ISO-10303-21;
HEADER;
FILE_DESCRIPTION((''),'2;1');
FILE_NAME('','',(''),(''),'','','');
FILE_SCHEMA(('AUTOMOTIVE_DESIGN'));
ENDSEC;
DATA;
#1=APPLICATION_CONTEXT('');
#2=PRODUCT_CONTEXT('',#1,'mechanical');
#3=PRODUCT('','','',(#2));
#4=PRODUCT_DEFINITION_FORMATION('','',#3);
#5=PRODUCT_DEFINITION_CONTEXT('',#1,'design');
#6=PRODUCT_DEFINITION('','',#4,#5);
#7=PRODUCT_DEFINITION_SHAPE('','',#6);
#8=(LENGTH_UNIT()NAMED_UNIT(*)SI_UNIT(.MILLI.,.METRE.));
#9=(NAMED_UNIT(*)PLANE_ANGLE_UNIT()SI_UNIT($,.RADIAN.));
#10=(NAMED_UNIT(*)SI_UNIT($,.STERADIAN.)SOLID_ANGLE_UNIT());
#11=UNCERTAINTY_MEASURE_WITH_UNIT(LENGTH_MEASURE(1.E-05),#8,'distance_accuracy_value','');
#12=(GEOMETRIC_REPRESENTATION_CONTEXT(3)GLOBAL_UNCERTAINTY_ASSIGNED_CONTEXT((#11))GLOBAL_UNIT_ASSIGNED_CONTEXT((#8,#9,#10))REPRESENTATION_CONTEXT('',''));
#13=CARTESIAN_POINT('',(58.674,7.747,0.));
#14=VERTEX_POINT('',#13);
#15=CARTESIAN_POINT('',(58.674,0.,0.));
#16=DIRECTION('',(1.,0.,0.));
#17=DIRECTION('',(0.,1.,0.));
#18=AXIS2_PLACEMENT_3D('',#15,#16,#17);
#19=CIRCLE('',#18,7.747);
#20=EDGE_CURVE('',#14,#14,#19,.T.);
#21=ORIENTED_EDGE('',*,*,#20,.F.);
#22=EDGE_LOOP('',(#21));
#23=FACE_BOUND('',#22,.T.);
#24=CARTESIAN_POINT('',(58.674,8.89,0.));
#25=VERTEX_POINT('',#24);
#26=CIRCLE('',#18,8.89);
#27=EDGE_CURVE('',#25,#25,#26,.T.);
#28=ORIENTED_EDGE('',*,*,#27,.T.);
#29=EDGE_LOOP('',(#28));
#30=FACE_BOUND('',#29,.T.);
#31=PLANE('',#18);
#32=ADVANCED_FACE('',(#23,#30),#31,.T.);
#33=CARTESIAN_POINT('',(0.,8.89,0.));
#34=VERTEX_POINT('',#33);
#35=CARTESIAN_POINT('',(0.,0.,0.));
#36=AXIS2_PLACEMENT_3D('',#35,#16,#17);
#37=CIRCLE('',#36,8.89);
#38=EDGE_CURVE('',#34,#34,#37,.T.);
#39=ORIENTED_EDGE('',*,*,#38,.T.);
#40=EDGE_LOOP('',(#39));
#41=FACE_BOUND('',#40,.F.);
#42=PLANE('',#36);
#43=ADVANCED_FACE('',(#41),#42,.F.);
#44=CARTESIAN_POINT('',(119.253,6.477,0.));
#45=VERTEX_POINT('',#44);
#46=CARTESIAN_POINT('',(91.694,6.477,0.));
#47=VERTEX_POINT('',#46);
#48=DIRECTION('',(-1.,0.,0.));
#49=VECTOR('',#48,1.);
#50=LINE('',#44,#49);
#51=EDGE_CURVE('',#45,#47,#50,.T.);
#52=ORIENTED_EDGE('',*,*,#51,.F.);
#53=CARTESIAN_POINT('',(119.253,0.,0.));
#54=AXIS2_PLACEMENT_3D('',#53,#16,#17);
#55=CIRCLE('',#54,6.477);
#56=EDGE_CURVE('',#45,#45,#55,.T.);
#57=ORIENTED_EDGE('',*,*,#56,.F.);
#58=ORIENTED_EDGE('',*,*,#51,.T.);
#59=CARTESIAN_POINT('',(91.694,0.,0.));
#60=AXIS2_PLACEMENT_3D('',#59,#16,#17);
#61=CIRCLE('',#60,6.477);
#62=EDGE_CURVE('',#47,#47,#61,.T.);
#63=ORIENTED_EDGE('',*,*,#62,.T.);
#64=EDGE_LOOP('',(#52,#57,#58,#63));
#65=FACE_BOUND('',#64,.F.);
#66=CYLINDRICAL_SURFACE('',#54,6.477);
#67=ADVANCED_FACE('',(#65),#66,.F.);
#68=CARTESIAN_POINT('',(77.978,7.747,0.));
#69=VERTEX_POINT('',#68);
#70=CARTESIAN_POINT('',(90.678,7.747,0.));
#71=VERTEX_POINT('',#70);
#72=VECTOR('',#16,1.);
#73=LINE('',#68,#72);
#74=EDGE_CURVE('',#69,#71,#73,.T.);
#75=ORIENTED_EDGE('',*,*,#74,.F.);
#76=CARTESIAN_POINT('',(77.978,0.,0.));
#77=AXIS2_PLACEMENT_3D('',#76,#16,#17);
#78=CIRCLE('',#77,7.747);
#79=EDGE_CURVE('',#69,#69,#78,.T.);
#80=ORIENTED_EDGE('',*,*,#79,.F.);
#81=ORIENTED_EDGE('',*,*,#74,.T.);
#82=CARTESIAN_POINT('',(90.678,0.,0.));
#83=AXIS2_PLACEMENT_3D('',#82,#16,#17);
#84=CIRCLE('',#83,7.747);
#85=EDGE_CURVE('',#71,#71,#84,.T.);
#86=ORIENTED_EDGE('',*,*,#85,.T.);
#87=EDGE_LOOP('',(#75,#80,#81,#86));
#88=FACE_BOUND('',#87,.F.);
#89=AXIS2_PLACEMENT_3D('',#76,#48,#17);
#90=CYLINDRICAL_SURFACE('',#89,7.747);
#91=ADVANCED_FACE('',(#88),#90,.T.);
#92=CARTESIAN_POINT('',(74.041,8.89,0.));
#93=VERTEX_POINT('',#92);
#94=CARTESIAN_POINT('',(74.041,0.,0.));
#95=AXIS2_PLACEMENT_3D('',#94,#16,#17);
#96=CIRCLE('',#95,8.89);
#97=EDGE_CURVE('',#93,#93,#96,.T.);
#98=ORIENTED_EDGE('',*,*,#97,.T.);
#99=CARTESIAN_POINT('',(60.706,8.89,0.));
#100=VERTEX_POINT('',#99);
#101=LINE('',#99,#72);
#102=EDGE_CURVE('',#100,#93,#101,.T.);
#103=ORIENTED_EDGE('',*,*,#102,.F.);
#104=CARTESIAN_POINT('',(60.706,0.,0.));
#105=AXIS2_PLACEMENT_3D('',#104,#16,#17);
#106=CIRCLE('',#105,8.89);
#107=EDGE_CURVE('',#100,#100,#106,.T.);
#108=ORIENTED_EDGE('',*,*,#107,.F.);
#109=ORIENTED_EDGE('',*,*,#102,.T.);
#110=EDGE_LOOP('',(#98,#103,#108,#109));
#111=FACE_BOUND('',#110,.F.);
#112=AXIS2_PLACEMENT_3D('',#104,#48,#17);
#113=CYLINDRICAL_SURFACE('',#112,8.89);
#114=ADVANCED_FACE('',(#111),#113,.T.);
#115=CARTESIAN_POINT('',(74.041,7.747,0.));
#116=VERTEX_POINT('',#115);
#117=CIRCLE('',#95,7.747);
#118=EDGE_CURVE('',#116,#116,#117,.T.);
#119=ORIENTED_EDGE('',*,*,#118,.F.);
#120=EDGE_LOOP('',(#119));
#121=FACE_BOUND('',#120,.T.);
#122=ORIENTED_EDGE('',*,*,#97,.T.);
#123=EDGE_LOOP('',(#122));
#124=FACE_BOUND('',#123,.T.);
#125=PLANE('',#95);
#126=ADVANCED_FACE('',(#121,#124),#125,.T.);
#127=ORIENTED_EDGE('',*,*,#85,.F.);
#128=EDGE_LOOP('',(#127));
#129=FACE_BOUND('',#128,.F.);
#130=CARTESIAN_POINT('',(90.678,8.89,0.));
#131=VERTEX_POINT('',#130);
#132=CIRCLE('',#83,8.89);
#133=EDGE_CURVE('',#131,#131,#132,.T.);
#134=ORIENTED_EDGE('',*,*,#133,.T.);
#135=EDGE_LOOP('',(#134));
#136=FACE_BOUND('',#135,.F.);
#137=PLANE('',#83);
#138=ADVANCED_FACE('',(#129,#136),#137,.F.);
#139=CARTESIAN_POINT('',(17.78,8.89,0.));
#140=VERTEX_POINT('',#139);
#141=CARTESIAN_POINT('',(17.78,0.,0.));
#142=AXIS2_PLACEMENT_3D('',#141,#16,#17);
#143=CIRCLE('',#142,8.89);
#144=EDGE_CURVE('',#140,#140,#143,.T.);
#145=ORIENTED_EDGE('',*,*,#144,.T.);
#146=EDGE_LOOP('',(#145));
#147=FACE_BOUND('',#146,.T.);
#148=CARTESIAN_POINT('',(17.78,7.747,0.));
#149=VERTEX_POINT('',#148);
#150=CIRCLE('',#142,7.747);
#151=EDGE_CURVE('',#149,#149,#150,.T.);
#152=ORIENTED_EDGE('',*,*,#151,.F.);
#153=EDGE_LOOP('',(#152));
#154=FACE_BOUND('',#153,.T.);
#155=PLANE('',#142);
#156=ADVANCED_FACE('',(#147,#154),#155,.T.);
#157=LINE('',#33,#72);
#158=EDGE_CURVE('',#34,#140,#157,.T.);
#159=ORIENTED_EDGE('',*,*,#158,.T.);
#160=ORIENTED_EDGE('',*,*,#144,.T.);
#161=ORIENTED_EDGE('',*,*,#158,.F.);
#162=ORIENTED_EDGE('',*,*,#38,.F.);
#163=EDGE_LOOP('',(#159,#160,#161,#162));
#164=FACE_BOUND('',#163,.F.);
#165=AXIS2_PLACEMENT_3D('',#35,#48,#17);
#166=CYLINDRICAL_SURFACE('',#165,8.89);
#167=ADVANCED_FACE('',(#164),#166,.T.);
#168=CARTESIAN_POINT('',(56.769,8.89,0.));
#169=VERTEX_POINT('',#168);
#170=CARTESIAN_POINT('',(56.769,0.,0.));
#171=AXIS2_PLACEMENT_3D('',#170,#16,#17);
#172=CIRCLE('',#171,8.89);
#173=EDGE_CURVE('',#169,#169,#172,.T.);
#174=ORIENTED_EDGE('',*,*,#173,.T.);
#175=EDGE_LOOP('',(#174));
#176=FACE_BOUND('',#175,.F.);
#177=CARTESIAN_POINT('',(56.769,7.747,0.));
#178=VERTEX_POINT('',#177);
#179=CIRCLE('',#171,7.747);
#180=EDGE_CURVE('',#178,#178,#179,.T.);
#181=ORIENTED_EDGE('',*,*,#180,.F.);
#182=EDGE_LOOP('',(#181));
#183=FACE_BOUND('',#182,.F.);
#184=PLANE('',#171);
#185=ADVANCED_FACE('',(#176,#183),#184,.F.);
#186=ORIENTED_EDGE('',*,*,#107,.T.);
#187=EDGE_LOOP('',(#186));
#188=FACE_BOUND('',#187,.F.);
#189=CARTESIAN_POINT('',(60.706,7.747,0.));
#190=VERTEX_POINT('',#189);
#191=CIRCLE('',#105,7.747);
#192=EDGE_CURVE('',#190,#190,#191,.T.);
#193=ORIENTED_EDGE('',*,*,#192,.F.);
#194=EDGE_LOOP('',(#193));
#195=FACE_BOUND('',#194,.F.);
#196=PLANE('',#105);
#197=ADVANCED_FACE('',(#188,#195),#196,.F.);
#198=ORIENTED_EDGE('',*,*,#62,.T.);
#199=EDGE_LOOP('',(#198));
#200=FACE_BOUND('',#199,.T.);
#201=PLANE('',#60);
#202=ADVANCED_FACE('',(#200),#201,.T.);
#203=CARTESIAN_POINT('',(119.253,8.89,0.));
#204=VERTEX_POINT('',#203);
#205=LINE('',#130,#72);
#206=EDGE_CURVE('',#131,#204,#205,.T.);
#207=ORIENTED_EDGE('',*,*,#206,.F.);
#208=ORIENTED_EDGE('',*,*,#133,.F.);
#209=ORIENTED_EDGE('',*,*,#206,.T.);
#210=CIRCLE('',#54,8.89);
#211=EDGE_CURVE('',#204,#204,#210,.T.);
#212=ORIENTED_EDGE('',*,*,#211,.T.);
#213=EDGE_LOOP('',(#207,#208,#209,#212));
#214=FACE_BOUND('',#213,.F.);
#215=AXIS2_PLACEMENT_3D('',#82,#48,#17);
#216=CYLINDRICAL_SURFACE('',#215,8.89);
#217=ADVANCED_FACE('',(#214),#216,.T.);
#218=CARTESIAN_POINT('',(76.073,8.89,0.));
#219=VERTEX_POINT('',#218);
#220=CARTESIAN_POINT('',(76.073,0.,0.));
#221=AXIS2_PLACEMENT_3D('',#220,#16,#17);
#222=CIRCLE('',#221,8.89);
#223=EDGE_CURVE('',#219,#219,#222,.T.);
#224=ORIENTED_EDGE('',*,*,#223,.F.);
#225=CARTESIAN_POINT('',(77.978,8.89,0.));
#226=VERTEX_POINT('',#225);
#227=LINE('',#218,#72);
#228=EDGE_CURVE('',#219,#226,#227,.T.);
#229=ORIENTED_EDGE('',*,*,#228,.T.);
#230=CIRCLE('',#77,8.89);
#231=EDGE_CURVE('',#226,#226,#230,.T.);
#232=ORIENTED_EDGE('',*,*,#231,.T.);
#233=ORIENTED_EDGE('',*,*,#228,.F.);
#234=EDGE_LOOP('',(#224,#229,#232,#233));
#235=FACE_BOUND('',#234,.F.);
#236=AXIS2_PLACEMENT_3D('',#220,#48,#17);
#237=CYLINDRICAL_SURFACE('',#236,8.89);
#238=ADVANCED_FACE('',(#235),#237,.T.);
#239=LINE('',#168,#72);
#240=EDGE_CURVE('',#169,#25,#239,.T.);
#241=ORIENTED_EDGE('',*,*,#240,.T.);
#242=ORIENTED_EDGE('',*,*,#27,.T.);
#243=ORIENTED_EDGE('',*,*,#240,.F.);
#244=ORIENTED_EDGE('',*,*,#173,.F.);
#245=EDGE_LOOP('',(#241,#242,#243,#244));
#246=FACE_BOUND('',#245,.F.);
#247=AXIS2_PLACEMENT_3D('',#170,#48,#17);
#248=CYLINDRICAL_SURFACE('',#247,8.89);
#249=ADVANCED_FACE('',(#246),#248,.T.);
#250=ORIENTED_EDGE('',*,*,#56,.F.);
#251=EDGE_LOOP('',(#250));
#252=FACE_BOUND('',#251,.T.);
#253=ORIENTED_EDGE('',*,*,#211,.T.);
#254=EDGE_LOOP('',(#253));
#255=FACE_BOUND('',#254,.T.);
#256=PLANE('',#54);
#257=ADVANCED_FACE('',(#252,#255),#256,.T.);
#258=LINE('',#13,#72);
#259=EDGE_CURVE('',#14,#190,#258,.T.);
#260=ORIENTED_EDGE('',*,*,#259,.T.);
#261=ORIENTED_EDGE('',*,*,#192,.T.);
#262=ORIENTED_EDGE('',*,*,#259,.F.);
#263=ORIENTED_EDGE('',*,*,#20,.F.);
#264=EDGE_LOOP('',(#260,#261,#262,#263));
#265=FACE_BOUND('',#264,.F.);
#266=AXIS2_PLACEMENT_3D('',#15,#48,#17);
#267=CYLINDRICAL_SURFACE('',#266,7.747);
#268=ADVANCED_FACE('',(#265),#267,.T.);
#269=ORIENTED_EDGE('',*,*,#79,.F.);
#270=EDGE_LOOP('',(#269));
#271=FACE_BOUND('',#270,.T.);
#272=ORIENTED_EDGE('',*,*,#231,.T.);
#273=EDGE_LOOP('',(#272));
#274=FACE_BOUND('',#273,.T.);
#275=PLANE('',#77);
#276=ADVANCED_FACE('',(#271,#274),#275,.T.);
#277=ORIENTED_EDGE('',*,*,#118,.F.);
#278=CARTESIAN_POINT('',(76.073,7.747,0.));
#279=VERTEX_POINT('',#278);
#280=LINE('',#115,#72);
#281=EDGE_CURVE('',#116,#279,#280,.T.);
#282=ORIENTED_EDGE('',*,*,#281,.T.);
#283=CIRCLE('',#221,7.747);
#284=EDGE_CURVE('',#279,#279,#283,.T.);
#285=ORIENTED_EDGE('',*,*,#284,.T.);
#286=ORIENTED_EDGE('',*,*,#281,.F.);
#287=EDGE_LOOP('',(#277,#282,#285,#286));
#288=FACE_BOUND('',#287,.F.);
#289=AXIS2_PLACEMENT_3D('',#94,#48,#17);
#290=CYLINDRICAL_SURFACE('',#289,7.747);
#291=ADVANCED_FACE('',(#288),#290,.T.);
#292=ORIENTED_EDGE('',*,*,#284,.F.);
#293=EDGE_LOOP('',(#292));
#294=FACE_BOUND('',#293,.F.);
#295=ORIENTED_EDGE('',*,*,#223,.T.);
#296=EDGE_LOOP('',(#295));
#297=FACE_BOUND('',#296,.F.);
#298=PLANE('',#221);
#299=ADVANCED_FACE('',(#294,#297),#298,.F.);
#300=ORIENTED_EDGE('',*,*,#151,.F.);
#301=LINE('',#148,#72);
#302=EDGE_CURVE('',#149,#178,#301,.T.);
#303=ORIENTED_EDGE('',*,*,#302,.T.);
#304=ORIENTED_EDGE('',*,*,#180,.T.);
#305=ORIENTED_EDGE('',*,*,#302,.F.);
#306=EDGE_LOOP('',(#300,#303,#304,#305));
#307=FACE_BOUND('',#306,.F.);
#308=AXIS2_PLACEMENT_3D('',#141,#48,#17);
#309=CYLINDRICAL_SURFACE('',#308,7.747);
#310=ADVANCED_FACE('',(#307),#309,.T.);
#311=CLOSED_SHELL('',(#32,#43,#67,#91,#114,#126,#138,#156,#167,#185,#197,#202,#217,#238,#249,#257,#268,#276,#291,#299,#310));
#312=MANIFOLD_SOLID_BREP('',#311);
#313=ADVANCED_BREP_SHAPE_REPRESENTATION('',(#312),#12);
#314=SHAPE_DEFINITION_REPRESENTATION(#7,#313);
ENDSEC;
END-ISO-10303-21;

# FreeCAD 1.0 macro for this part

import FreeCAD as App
import Part
import Sketcher
Q = App.Units.Quantity

doc = App.newDocument("Part")
body = doc.addObject("PartDesign::Body", "Body")

sketch1 = body.newObject("Sketcher::SketchObject", "Sketch")
sketch1.AttachmentSupport = (doc.getObject("YZ_Plane"), [""])
sketch1.MapMode = "FlatFace"
sketch1.addGeometry(Part.Circle(App.Vector(0, 0, 0), App.Vector(0, 0, 1), 9), False)
sketch1.addConstraint([
    Sketcher.Constraint("Coincident", 0, 3, -1, 1),
    Sketcher.Constraint("Diameter", 0, Q("0.7 in")),
])
pad1 = body.newObject("PartDesign::Pad", "Pad")
pad1.Profile = sketch1
pad1.Length = Q("0.7 in")

sketch2 = body.newObject("Sketcher::SketchObject", "Sketch001")
sketch2.AttachmentSupport = (doc.getObject("YZ_Plane"), [""])
sketch2.MapMode = "FlatFace"
sketch2.AttachmentOffset = App.Placement(App.Vector(0, 0, 0.7 * 25.4), App.Rotation())
sketch2.addGeometry(Part.Circle(App.Vector(0, 0, 0), App.Vector(0, 0, 1), 8), False)
sketch2.addConstraint([
    Sketcher.Constraint("Coincident", 0, 3, -1, 1),
    Sketcher.Constraint("Diameter", 0, Q("0.61 in")),
])
pad2 = body.newObject("PartDesign::Pad", "Pad001")
pad2.Profile = sketch2
pad2.Length = Q("1.535 in")

sketch3 = body.newObject("Sketcher::SketchObject", "Sketch002")
sketch3.AttachmentSupport = (doc.getObject("YZ_Plane"), [""])
sketch3.MapMode = "FlatFace"
sketch3.AttachmentOffset = App.Placement(App.Vector(0, 0, 2.235 * 25.4), App.Rotation())
sketch3.addGeometry(Part.Circle(App.Vector(0, 0, 0), App.Vector(0, 0, 1), 9), False)
sketch3.addConstraint([
    Sketcher.Constraint("Coincident", 0, 3, -1, 1),
    Sketcher.Constraint("Diameter", 0, Q("0.7 in")),
])
pad3 = body.newObject("PartDesign::Pad", "Pad002")
pad3.Profile = sketch3
pad3.Length = Q("0.075 in")

sketch4 = body.newObject("Sketcher::SketchObject", "Sketch003")
sketch4.AttachmentSupport = (doc.getObject("YZ_Plane"), [""])
sketch4.MapMode = "FlatFace"
sketch4.AttachmentOffset = App.Placement(App.Vector(0, 0, 2.31 * 25.4), App.Rotation())
sketch4.addGeometry(Part.Circle(App.Vector(0, 0, 0), App.Vector(0, 0, 1), 8), False)
sketch4.addConstraint([
    Sketcher.Constraint("Coincident", 0, 3, -1, 1),
    Sketcher.Constraint("Diameter", 0, Q("0.61 in")),
])
pad4 = body.newObject("PartDesign::Pad", "Pad003")
pad4.Profile = sketch4
pad4.Length = Q("0.08 in")

sketch5 = body.newObject("Sketcher::SketchObject", "Sketch004")
sketch5.AttachmentSupport = (doc.getObject("YZ_Plane"), [""])
sketch5.MapMode = "FlatFace"
sketch5.AttachmentOffset = App.Placement(App.Vector(0, 0, 2.39 * 25.4), App.Rotation())
sketch5.addGeometry(Part.Circle(App.Vector(0, 0, 0), App.Vector(0, 0, 1), 9), False)
sketch5.addConstraint([
    Sketcher.Constraint("Coincident", 0, 3, -1, 1),
    Sketcher.Constraint("Diameter", 0, Q("0.7 in")),
])
pad5 = body.newObject("PartDesign::Pad", "Pad004")
pad5.Profile = sketch5
pad5.Length = Q("0.525 in")

sketch6 = body.newObject("Sketcher::SketchObject", "Sketch005")
sketch6.AttachmentSupport = (doc.getObject("YZ_Plane"), [""])
sketch6.MapMode = "FlatFace"
sketch6.AttachmentOffset = App.Placement(App.Vector(0, 0, 2.915 * 25.4), App.Rotation())
sketch6.addGeometry(Part.Circle(App.Vector(0, 0, 0), App.Vector(0, 0, 1), 8), False)
sketch6.addConstraint([
    Sketcher.Constraint("Coincident", 0, 3, -1, 1),
    Sketcher.Constraint("Diameter", 0, Q("0.61 in")),
])
pad6 = body.newObject("PartDesign::Pad", "Pad005")
pad6.Profile = sketch6
pad6.Length = Q("0.08 in")

sketch7 = body.newObject("Sketcher::SketchObject", "Sketch006")
sketch7.AttachmentSupport = (doc.getObject("YZ_Plane"), [""])
sketch7.MapMode = "FlatFace"
sketch7.AttachmentOffset = App.Placement(App.Vector(0, 0, 2.995 * 25.4), App.Rotation())
sketch7.addGeometry(Part.Circle(App.Vector(0, 0, 0), App.Vector(0, 0, 1), 9), False)
sketch7.addConstraint([
    Sketcher.Constraint("Coincident", 0, 3, -1, 1),
    Sketcher.Constraint("Diameter", 0, Q("0.7 in")),
])
pad7 = body.newObject("PartDesign::Pad", "Pad006")
pad7.Profile = sketch7
pad7.Length = Q("0.075 in")

sketch8 = body.newObject("Sketcher::SketchObject", "Sketch007")
sketch8.AttachmentSupport = (doc.getObject("YZ_Plane"), [""])
sketch8.MapMode = "FlatFace"
sketch8.AttachmentOffset = App.Placement(App.Vector(0, 0, 3.07 * 25.4), App.Rotation())
sketch8.addGeometry(Part.Circle(App.Vector(0, 0, 0), App.Vector(0, 0, 1), 8), False)
sketch8.addConstraint([
    Sketcher.Constraint("Coincident", 0, 3, -1, 1),
    Sketcher.Constraint("Diameter", 0, Q("0.61 in")),
])
pad8 = body.newObject("PartDesign::Pad", "Pad007")
pad8.Profile = sketch8
pad8.Length = Q("0.5 in")

sketch9 = body.newObject("Sketcher::SketchObject", "Sketch008")
sketch9.AttachmentSupport = (doc.getObject("YZ_Plane"), [""])
sketch9.MapMode = "FlatFace"
sketch9.AttachmentOffset = App.Placement(App.Vector(0, 0, 3.57 * 25.4), App.Rotation())
sketch9.addGeometry(Part.Circle(App.Vector(0, 0, 0), App.Vector(0, 0, 1), 9), False)
sketch9.addConstraint([
    Sketcher.Constraint("Coincident", 0, 3, -1, 1),
    Sketcher.Constraint("Diameter", 0, Q("0.7 in")),
])
pad9 = body.newObject("PartDesign::Pad", "Pad008")
pad9.Profile = sketch9
pad9.Length = Q("1.125 in")

sketch10 = body.newObject("Sketcher::SketchObject", "Sketch009")
sketch10.AttachmentSupport = (doc.getObject("YZ_Plane"), [""])
sketch10.MapMode = "FlatFace"
sketch10.AttachmentOffset = App.Placement(App.Vector(0, 0, 4.695 * 25.4), App.Rotation())
sketch10.addGeometry(Part.Circle(App.Vector(0, 0, 0), App.Vector(0, 0, 1), 6), False)
sketch10.addConstraint([
    Sketcher.Constraint("Coincident", 0, 3, -1, 1),
    Sketcher.Constraint("Diameter", 0, Q("0.51 in")),
])
pocket1 = body.newObject("PartDesign::Pocket", "Pocket")
pocket1.Profile = sketch10
pocket1.Length = Q("1.085 in")

doc.recompute()
